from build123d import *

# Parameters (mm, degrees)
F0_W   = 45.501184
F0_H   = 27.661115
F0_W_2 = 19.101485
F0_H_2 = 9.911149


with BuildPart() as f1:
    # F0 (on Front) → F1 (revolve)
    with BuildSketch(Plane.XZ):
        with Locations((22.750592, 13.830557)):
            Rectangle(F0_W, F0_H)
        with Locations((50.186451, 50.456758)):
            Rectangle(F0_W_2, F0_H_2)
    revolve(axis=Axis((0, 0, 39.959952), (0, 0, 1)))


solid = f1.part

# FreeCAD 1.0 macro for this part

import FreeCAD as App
import Part
import Sketcher
from FreeCAD import Vector
Q = App.Units.Quantity


def add_polygon(sketch, points):
    """Adds a closed chain of lines whose ends are joined by coincident constraints."""
    first, n = sketch.GeometryCount, len(points)
    for a, b in zip(points, points[1:] + points[:1]):
        sketch.addGeometry(Part.LineSegment(App.Vector(*a, 0), App.Vector(*b, 0)), False)
    for i in range(n):
        sketch.addConstraint(Sketcher.Constraint("Coincident", first + i, 2, first + (i + 1) % n, 1))

doc = App.newDocument("Part")
body = doc.addObject("PartDesign::Body", "Body")
body.AllowCompound = True

sketch1 = body.newObject("Sketcher::SketchObject", "Sketch")
sketch1.AttachmentSupport = (doc.getObject("XZ_Plane"), [""])
sketch1.MapMode = "FlatFace"
add_polygon(sketch1, [(0, 27.661115), (0, 0), (45.501184, 0), (45.501184, 27.661115)])
add_polygon(sketch1, [(40.635708, 55.412332), (40.635708, 45.501184), (59.737193, 45.501184), (59.737193, 55.412332)])
sketch1.addConstraint([
    Sketcher.Constraint("Vertical", 0),
    Sketcher.Constraint("Horizontal", 1),
    Sketcher.Constraint("Vertical", 2),
    Sketcher.Constraint("Horizontal", 3),
    Sketcher.Constraint("Vertical", 4),
    Sketcher.Constraint("Horizontal", 5),
    Sketcher.Constraint("Vertical", 6),
    Sketcher.Constraint("Horizontal", 7),
    Sketcher.Constraint("Coincident", 0, 2, -1, 1),
    Sketcher.Constraint("DistanceY", 4, 2, 4, 1, Q("9.911149 mm")),
    Sketcher.Constraint("DistanceX", 1, 1, 1, 2, Q("45.501184 mm")),
    Sketcher.Constraint("DistanceX", 5, 1, 5, 2, Q("19.101485 mm")),
    Sketcher.Constraint("DistanceY", 0, 2, 0, 1, Q("27.661115 mm")),
    Sketcher.Constraint("DistanceX", -1, 1, 4, 2, Q("40.635708 mm")),
    Sketcher.Constraint("DistanceY", 2, 2, 4, 2, Q("17.840069 mm")),
])
revolution = body.newObject("PartDesign::Revolution", "Revolution")
revolution.Profile = sketch1
revolution.ReferenceAxis = (sketch1, ["V_Axis"])
revolution.Angle = 360

doc.recompute()
